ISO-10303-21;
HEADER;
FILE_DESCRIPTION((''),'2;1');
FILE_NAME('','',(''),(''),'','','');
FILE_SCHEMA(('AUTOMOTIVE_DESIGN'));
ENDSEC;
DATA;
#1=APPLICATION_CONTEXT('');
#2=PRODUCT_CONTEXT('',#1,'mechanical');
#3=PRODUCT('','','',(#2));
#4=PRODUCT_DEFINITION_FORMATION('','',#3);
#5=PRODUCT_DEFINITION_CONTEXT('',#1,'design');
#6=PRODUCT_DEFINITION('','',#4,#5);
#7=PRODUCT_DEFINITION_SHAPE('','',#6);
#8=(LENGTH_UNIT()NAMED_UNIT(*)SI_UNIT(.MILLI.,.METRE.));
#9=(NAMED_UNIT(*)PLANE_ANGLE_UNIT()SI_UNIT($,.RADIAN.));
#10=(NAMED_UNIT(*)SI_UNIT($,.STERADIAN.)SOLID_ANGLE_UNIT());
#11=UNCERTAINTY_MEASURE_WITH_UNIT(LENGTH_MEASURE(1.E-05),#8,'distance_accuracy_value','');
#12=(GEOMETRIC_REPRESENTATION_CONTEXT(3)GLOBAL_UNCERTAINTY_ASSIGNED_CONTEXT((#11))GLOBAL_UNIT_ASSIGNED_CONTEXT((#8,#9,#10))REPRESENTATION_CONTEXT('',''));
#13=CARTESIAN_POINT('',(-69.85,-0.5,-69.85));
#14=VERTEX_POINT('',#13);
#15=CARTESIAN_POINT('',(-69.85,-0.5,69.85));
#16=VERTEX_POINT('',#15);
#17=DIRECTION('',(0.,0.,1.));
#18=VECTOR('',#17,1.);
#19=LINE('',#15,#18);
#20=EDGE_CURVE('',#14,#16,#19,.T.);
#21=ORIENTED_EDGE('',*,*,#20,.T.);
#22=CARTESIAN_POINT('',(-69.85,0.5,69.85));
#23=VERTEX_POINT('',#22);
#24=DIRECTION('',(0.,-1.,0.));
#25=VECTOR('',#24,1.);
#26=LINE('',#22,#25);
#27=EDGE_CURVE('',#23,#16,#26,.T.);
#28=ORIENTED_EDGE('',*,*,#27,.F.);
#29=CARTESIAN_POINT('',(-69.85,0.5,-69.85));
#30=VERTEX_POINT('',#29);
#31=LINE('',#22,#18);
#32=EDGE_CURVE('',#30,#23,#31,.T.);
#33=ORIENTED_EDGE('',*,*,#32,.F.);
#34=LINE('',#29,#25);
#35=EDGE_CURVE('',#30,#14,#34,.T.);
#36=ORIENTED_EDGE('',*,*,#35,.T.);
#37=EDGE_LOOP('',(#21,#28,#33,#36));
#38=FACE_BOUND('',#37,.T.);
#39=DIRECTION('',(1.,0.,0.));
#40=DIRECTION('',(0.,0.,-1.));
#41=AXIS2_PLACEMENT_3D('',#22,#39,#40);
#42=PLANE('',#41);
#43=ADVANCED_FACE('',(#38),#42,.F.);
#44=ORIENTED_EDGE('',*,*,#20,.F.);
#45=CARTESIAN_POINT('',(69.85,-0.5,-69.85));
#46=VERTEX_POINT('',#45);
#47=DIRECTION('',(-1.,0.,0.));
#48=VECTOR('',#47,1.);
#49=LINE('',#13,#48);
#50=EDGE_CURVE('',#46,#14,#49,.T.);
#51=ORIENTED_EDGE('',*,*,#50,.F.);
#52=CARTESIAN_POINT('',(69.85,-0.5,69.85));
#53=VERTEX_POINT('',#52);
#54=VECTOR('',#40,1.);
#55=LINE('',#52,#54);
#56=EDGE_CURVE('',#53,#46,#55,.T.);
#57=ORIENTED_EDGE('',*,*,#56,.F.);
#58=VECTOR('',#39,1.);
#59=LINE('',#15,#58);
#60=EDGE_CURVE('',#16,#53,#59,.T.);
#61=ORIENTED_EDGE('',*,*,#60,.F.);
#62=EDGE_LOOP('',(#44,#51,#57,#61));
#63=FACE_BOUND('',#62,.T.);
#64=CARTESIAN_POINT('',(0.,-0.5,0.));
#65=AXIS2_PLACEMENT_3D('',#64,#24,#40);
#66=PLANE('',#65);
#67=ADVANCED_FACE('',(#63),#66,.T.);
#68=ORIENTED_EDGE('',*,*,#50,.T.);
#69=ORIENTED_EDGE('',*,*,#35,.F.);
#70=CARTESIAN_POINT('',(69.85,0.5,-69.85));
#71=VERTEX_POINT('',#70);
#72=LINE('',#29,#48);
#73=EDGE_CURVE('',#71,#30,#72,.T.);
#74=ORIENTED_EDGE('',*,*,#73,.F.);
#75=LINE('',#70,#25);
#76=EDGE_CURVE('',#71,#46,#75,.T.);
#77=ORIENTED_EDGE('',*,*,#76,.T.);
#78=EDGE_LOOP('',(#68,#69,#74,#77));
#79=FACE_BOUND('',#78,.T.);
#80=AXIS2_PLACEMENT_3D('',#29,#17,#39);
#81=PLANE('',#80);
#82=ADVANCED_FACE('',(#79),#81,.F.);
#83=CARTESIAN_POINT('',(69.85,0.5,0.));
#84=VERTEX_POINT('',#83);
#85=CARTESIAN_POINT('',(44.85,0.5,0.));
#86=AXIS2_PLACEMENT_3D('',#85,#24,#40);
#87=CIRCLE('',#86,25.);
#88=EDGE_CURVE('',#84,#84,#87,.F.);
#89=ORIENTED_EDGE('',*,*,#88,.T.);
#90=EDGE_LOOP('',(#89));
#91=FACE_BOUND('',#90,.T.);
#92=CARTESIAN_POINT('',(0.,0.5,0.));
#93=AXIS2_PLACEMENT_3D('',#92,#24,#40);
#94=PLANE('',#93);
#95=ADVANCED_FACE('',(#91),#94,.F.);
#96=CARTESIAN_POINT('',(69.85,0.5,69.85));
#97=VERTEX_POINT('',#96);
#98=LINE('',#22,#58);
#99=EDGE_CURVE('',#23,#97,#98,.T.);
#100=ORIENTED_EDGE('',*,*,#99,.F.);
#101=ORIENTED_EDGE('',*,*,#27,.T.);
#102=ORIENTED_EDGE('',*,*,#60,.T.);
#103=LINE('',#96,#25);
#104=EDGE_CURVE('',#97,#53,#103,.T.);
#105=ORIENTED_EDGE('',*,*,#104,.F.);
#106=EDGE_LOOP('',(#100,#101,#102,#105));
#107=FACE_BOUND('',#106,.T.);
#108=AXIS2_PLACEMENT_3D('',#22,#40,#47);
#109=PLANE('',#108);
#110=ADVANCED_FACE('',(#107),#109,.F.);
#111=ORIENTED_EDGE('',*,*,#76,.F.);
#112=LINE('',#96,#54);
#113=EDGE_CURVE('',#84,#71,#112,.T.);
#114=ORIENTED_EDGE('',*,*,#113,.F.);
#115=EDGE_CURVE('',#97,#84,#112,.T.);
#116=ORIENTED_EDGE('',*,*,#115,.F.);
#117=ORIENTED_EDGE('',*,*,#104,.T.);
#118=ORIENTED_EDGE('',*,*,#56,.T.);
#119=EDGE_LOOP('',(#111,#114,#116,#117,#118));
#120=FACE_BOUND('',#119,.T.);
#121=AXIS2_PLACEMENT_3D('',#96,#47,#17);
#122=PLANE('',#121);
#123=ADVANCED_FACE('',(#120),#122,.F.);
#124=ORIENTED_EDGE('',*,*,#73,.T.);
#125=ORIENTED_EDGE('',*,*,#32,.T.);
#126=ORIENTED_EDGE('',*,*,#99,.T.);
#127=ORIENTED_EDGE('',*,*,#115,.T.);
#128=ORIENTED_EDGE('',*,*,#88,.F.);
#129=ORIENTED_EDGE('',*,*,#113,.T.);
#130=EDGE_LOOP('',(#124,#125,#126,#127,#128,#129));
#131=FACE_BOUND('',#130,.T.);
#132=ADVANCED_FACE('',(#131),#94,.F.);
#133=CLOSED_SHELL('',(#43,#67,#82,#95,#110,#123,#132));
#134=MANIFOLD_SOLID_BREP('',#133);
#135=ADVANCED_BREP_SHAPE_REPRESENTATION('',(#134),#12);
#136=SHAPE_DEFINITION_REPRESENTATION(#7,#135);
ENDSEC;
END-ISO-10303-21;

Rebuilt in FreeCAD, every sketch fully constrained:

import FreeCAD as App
import Part
import Sketcher

V = App.Vector

doc = App.newDocument("Part")
body = doc.addObject("PartDesign::Body", "Body")

# Sketch on XZ plane
sketch1 = body.newObject("Sketcher::SketchObject", "Sketch")
sketch1.AttachmentSupport = (doc.getObject("XZ_Plane"), [""])
sketch1.MapMode = "FlatFace"
sketch1.addGeometry([
    Part.LineSegment(V(-70, -70, 0), V(-70, 70, 0)),
    Part.LineSegment(V(-70, 70, 0), V(70, 70, 0)),
    Part.LineSegment(V(70, 70, 0), V(70, -70, 0)),
    Part.LineSegment(V(70, -70, 0), V(-70, -70, 0)),
], False)
sketch1.addConstraint([
    Sketcher.Constraint("Coincident", 0, 2, 1, 1),
    Sketcher.Constraint("Coincident", 1, 2, 2, 1),
    Sketcher.Constraint("Coincident", 2, 2, 3, 1),
    Sketcher.Constraint("Coincident", 3, 2, 0, 1),
    Sketcher.Constraint("Vertical", 0),
    Sketcher.Constraint("Horizontal", 1),
    Sketcher.Constraint("Vertical", 2),
    Sketcher.Constraint("Horizontal", 3),
    Sketcher.Constraint("Symmetric", 0, 2, 2, 2, -1, 1),
    Sketcher.Constraint("Equal", 3, 0),
    Sketcher.Constraint("DistanceX", 1, 1, 1, 2, 139.7),
])
pad1 = body.newObject("PartDesign::Pad", "Pad")
pad1.Profile = sketch1
pad1.Length = 1
pad1.Midplane = True

doc.recompute()
